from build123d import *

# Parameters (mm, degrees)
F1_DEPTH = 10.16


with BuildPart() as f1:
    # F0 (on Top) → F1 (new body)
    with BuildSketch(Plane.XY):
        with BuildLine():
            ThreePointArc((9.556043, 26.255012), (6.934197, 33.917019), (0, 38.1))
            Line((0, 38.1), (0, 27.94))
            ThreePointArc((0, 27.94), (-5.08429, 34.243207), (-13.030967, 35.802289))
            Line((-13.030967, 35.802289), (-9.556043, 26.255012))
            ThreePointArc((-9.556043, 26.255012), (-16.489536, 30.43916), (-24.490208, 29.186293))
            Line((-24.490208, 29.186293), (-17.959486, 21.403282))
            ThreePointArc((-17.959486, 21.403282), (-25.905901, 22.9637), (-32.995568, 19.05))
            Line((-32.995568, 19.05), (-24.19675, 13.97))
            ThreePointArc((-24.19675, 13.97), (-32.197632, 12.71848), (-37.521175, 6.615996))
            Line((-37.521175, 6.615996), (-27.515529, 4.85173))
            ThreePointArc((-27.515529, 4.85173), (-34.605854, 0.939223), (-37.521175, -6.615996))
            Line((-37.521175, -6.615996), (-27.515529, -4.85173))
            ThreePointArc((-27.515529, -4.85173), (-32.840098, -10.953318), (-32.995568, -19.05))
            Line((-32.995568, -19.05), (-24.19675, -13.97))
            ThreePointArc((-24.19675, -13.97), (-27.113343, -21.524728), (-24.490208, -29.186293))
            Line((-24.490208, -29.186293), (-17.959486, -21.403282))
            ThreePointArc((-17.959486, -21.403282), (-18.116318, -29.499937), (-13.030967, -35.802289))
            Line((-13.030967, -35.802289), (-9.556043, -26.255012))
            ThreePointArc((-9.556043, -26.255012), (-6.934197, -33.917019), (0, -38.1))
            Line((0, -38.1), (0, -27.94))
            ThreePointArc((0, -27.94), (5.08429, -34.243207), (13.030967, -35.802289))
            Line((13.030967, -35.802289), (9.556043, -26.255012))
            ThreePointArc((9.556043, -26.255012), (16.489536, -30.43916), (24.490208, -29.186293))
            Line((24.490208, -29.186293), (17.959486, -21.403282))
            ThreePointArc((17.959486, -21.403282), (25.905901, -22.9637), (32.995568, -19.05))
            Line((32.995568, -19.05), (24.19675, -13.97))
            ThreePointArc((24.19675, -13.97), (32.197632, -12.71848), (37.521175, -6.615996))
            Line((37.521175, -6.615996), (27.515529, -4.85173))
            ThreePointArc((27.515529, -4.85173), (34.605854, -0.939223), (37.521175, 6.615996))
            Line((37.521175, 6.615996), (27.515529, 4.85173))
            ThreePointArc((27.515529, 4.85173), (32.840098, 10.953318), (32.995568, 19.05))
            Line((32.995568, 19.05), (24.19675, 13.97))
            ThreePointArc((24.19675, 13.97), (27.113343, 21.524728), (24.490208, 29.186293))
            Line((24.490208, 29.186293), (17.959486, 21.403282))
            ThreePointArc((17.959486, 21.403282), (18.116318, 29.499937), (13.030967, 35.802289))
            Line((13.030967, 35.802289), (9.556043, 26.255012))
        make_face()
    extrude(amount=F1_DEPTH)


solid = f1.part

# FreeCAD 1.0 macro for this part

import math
import FreeCAD as App
import Part
import Sketcher

V = App.Vector
Q = App.Units.Quantity

doc = App.newDocument("Part")
body = doc.addObject("PartDesign::Body", "Body")

# Sketch on XY plane
sketch1 = body.newObject("Sketcher::SketchObject", "Sketch")
sketch1.AttachmentSupport = (doc.getObject("XY_Plane"), [""])
sketch1.MapMode = "FlatFace"
sketch1.addGeometry(Part.ArcOfCircle(Part.Circle(V(-2, 26, 0), V(0, 0, 1), 12), math.radians(-1), math.radians(79)), False)
sketch1.addGeometry(Part.LineSegment(V(0, 38, 0), V(0, 28, 0)), False)
sketch1.addGeometry(Part.ArcOfCircle(Part.Circle(V(-11, 24, 0), V(0, 0, 1), 12), math.radians(19), math.radians(99)), False)
sketch1.addGeometry(Part.LineSegment(V(-13, 36, 0), V(-10, 26, 0)), False)
sketch1.addGeometry(Part.ArcOfCircle(Part.Circle(V(-19, 19, 0), V(0, 0, 1), 12), math.radians(39), math.radians(119)), False)
sketch1.addGeometry(Part.LineSegment(V(-24, 29, 0), V(-18, 21, 0)), False)
sketch1.addGeometry(Part.ArcOfCircle(Part.Circle(V(-24, 11, 0), V(0, 0, 1), 12), math.radians(59), math.radians(139)), False)
sketch1.addGeometry(Part.LineSegment(V(-33, 19, 0), V(-24, 14, 0)), False)
sketch1.addGeometry(Part.ArcOfCircle(Part.Circle(V(-26, 2, 0), V(0, 0, 1), 12), math.radians(79), math.radians(159)), False)
sketch1.addGeometry(Part.LineSegment(V(-38, 7, 0), V(-28, 5, 0)), False)
sketch1.addGeometry(Part.ArcOfCircle(Part.Circle(V(-26, -7, 0), V(0, 0, 1), 12), math.radians(99), math.radians(179)), False)
sketch1.addGeometry(Part.LineSegment(V(-38, -7, 0), V(-28, -5, 0)), False)
sketch1.addGeometry(Part.ArcOfCircle(Part.Circle(V(-22, -15, 0), V(0, 0, 1), 12), math.radians(119), math.radians(199)), False)
sketch1.addGeometry(Part.LineSegment(V(-33, -19, 0), V(-24, -14, 0)), False)
sketch1.addGeometry(Part.ArcOfCircle(Part.Circle(V(-15, -22, 0), V(0, 0, 1), 12), math.radians(139), math.radians(219)), False)
sketch1.addGeometry(Part.LineSegment(V(-24, -29, 0), V(-18, -21, 0)), False)
sketch1.addGeometry(Part.ArcOfCircle(Part.Circle(V(-7, -26, 0), V(0, 0, 1), 12), math.radians(159), math.radians(239)), False)
sketch1.addGeometry(Part.LineSegment(V(-13, -36, 0), V(-10, -26, 0)), False)
sketch1.addGeometry(Part.ArcOfCircle(Part.Circle(V(2, -26, 0), V(0, 0, 1), 12), math.radians(179), math.radians(259)), False)
sketch1.addGeometry(Part.LineSegment(V(0, -38, 0), V(0, -28, 0)), False)
sketch1.addGeometry(Part.ArcOfCircle(Part.Circle(V(11, -24, 0), V(0, 0, 1), 12), math.radians(-161), math.radians(-81)), False)
sketch1.addGeometry(Part.LineSegment(V(13, -36, 0), V(10, -26, 0)), False)
sketch1.addGeometry(Part.ArcOfCircle(Part.Circle(V(19, -19, 0), V(0, 0, 1), 12), math.radians(-141), math.radians(-61)), False)
sketch1.addGeometry(Part.LineSegment(V(24, -29, 0), V(18, -21, 0)), False)
sketch1.addGeometry(Part.ArcOfCircle(Part.Circle(V(24, -11, 0), V(0, 0, 1), 12), math.radians(-121), math.radians(-41)), False)
sketch1.addGeometry(Part.LineSegment(V(33, -19, 0), V(24, -14, 0)), False)
sketch1.addGeometry(Part.ArcOfCircle(Part.Circle(V(26, -2, 0), V(0, 0, 1), 12), math.radians(-101), math.radians(-21)), False)
sketch1.addGeometry(Part.LineSegment(V(38, -7, 0), V(28, -5, 0)), False)
sketch1.addGeometry(Part.ArcOfCircle(Part.Circle(V(26, 7, 0), V(0, 0, 1), 12), math.radians(-81), math.radians(-1)), False)
sketch1.addGeometry(Part.LineSegment(V(38, 7, 0), V(28, 5, 0)), False)
sketch1.addGeometry(Part.ArcOfCircle(Part.Circle(V(22, 15, 0), V(0, 0, 1), 12), math.radians(-61), math.radians(19)), False)
sketch1.addGeometry(Part.LineSegment(V(33, 19, 0), V(24, 14, 0)), False)
sketch1.addGeometry(Part.ArcOfCircle(Part.Circle(V(15, 22, 0), V(0, 0, 1), 12), math.radians(-41), math.radians(39)), False)
sketch1.addGeometry(Part.LineSegment(V(24, 29, 0), V(18, 21, 0)), False)
sketch1.addGeometry(Part.ArcOfCircle(Part.Circle(V(7, 26, 0), V(0, 0, 1), 12), math.radians(-21), math.radians(59)), False)
sketch1.addGeometry(Part.LineSegment(V(13, 36, 0), V(10, 26, 0)), False)
sketch1.addConstraint(Sketcher.Constraint("Coincident", 0, 2, 1, 1))
sketch1.addConstraint(Sketcher.Constraint("Coincident", 1, 2, 2, 1))
sketch1.addConstraint(Sketcher.Constraint("Coincident", 2, 2, 3, 1))
sketch1.addConstraint(Sketcher.Constraint("Coincident", 3, 2, 4, 1))
sketch1.addConstraint(Sketcher.Constraint("Coincident", 4, 2, 5, 1))
sketch1.addConstraint(Sketcher.Constraint("Coincident", 5, 2, 6, 1))
sketch1.addConstraint(Sketcher.Constraint("Coincident", 6, 2, 7, 1))
sketch1.addConstraint(Sketcher.Constraint("Coincident", 7, 2, 8, 1))
sketch1.addConstraint(Sketcher.Constraint("Coincident", 8, 2, 9, 1))
sketch1.addConstraint(Sketcher.Constraint("Coincident", 9, 2, 10, 1))
sketch1.addConstraint(Sketcher.Constraint("Coincident", 10, 2, 11, 1))
sketch1.addConstraint(Sketcher.Constraint("Coincident", 11, 2, 12, 1))
sketch1.addConstraint(Sketcher.Constraint("Coincident", 12, 2, 13, 1))
sketch1.addConstraint(Sketcher.Constraint("Coincident", 13, 2, 14, 1))
sketch1.addConstraint(Sketcher.Constraint("Coincident", 14, 2, 15, 1))
sketch1.addConstraint(Sketcher.Constraint("Coincident", 15, 2, 16, 1))
sketch1.addConstraint(Sketcher.Constraint("Coincident", 16, 2, 17, 1))
sketch1.addConstraint(Sketcher.Constraint("Coincident", 17, 2, 18, 1))
sketch1.addConstraint(Sketcher.Constraint("Coincident", 18, 2, 19, 1))
sketch1.addConstraint(Sketcher.Constraint("Coincident", 19, 2, 20, 1))
sketch1.addConstraint(Sketcher.Constraint("Coincident", 20, 2, 21, 1))
sketch1.addConstraint(Sketcher.Constraint("Coincident", 21, 2, 22, 1))
sketch1.addConstraint(Sketcher.Constraint("Coincident", 22, 2, 23, 1))
sketch1.addConstraint(Sketcher.Constraint("Coincident", 23, 2, 24, 1))
sketch1.addConstraint(Sketcher.Constraint("Coincident", 24, 2, 25, 1))
sketch1.addConstraint(Sketcher.Constraint("Coincident", 25, 2, 26, 1))
sketch1.addConstraint(Sketcher.Constraint("Coincident", 26, 2, 27, 1))
sketch1.addConstraint(Sketcher.Constraint("Coincident", 27, 2, 28, 1))
sketch1.addConstraint(Sketcher.Constraint("Coincident", 28, 2, 29, 1))
sketch1.addConstraint(Sketcher.Constraint("Coincident", 29, 2, 30, 1))
sketch1.addConstraint(Sketcher.Constraint("Coincident", 30, 2, 31, 1))
sketch1.addConstraint(Sketcher.Constraint("Coincident", 31, 2, 32, 1))
sketch1.addConstraint(Sketcher.Constraint("Coincident", 32, 2, 33, 1))
sketch1.addConstraint(Sketcher.Constraint("Coincident", 33, 2, 34, 1))
sketch1.addConstraint(Sketcher.Constraint("Coincident", 34, 2, 35, 1))
sketch1.addConstraint(Sketcher.Constraint("Coincident", 35, 2, 0, 1))
sketch1.addConstraint(Sketcher.Constraint("Vertical", 1))
sketch1.addConstraint(Sketcher.Constraint("Vertical", 19))
sketch1.addConstraint(Sketcher.Constraint("Equal", 0, 2))
sketch1.addConstraint(Sketcher.Constraint("Equal", 0, 4))
sketch1.addConstraint(Sketcher.Constraint("Equal", 2, 6))
sketch1.addConstraint(Sketcher.Constraint("Equal", 4, 8))
sketch1.addConstraint(Sketcher.Constraint("Equal", 8, 10))
sketch1.addConstraint(Sketcher.Constraint("Equal", 6, 12))
sketch1.addConstraint(Sketcher.Constraint("Equal", 10, 14))
sketch1.addConstraint(Sketcher.Constraint("Equal", 14, 16))
sketch1.addConstraint(Sketcher.Constraint("Equal", 16, 18))
sketch1.addConstraint(Sketcher.Constraint("Equal", 18, 20))
sketch1.addConstraint(Sketcher.Constraint("Equal", 18, 22))
sketch1.addConstraint(Sketcher.Constraint("Equal", 20, 24))
sketch1.addConstraint(Sketcher.Constraint("Equal", 22, 26))
sketch1.addConstraint(Sketcher.Constraint("Equal", 26, 28))
sketch1.addConstraint(Sketcher.Constraint("Equal", 24, 30))
sketch1.addConstraint(Sketcher.Constraint("Equal", 28, 32))
sketch1.addConstraint(Sketcher.Constraint("Equal", 32, 34))
sketch1.addConstraint(Sketcher.Constraint("Symmetric", 0, 3, 18, 3, -1, 1))
sketch1.addConstraint(Sketcher.Constraint("Symmetric", 2, 3, 20, 3, -1, 1))
sketch1.addConstraint(Sketcher.Constraint("Symmetric", 4, 3, 22, 3, -1, 1))
sketch1.addConstraint(Sketcher.Constraint("Symmetric", 6, 3, 24, 3, -1, 1))
sketch1.addConstraint(Sketcher.Constraint("Symmetric", 8, 3, 26, 3, -1, 1))
sketch1.addConstraint(Sketcher.Constraint("Symmetric", 10, 3, 28, 3, -1, 1))
sketch1.addConstraint(Sketcher.Constraint("Symmetric", 12, 3, 30, 3, -1, 1))
sketch1.addConstraint(Sketcher.Constraint("Symmetric", 14, 3, 32, 3, -1, 1))
sketch1.addConstraint(Sketcher.Constraint("Symmetric", 16, 3, 34, 3, -1, 1))
sketch1.addConstraint(Sketcher.Constraint("Symmetric", 16, 2, 20, 2, -2))
sketch1.addConstraint(Sketcher.Constraint("Symmetric", 17, 2, 21, 2, -2))
sketch1.addConstraint(Sketcher.Constraint("Symmetric", 14, 2, 22, 2, -2))
sketch1.addConstraint(Sketcher.Constraint("Symmetric", 15, 2, 23, 2, -2))
sketch1.addConstraint(Sketcher.Constraint("Symmetric", 12, 2, 24, 2, -2))
sketch1.addConstraint(Sketcher.Constraint("Symmetric", 13, 2, 25, 2, -2))
sketch1.addConstraint(Sketcher.Constraint("Symmetric", 10, 2, 26, 2, -2))
sketch1.addConstraint(Sketcher.Constraint("Symmetric", 11, 2, 27, 2, -2))
sketch1.addConstraint(Sketcher.Constraint("Symmetric", 8, 2, 28, 2, -2))
sketch1.addConstraint(Sketcher.Constraint("Symmetric", 9, 2, 29, 2, -2))
sketch1.addConstraint(Sketcher.Constraint("Symmetric", 6, 2, 30, 2, -2))
sketch1.addConstraint(Sketcher.Constraint("Symmetric", 7, 2, 31, 2, -2))
sketch1.addConstraint(Sketcher.Constraint("Symmetric", 4, 2, 32, 2, -2))
sketch1.addConstraint(Sketcher.Constraint("Symmetric", 5, 2, 33, 2, -2))
sketch1.addConstraint(Sketcher.Constraint("Symmetric", 2, 2, 34, 2, -2))
sketch1.addConstraint(Sketcher.Constraint("Symmetric", 3, 2, 35, 2, -2))
sketch1.addConstraint(Sketcher.Constraint("Symmetric", 0, 2, 18, 2, -1))
sketch1.addConstraint(Sketcher.Constraint("Equal", 3, 5))
sketch1.addConstraint(Sketcher.Constraint("Equal", 5, 7))
sketch1.addConstraint(Sketcher.Constraint("Equal", 7, 9))
sketch1.addConstraint(Sketcher.Constraint("DistanceY", 1, 2, 1, 1, Q("0.4 in")))
sketch1.addConstraint(Sketcher.Constraint("Angle", 3, Q("-70.000003 deg")))
sketch1.addConstraint(Sketcher.Constraint("Angle", 5, Q("-49.999999 deg")))
sketch1.addConstraint(Sketcher.Constraint("Angle", 7, Q("-30 deg")))
sketch1.addConstraint(Sketcher.Constraint("Angle", 9, Q("-10.000004 deg")))
sketch1.addConstraint(Sketcher.Constraint("Distance", 3, Q("0.4 in")))
sketch1.addConstraint(Sketcher.Constraint("DistanceY", -1, 1, 0, 2, Q("1.5 in")))
sketch1.addConstraint(Sketcher.Constraint("DistanceY", -1, 1, 6, 2, Q("0.75 in")))
sketch1.addConstraint(Sketcher.Constraint("Radius", 4, Q("11.836001 mm")))
sketch1.addConstraint(Sketcher.Constraint("DistanceY", 16, 3, -1, 1, Q("25.666999 mm")))
sketch1.addConstraint(Sketcher.Constraint("DistanceX", 6, 3, 2, 3, Q("12.8769 mm")))
sketch1.addConstraint(Sketcher.Constraint("DistanceY", 10, 3, 4, 3, Q("25.666998 mm")))
sketch1.addConstraint(Sketcher.Constraint("DistanceY", 14, 3, 6, 3, Q("33.022999 mm")))
sketch1.addConstraint(Sketcher.Constraint("DistanceY", 18, 3, 10, 3, Q("19.643 mm")))
sketch1.addConstraint(Sketcher.Constraint("DistanceX", 8, 3, 18, 3, Q("28.756101 mm")))
sketch1.addConstraint(Sketcher.Constraint("DistanceX", 14, 3, 17, 2, Q("5.723499 mm")))
pad1 = body.newObject("PartDesign::Pad", "Pad")
pad1.Profile = sketch1
pad1.Length = Q("0.4 in")

doc.recompute()
